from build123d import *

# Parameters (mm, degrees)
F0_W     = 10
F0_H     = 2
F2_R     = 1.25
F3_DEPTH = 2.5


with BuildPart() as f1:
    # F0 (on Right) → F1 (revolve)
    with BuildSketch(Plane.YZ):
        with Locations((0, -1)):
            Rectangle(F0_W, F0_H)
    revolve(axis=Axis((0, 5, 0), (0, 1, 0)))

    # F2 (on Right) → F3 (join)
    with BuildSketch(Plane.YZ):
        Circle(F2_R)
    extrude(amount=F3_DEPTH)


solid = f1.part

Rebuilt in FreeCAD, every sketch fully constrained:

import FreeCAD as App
import Part
import Sketcher
from FreeCAD import Vector

doc = App.newDocument("Part")
body = doc.addObject("PartDesign::Body", "Body")

sketch1 = body.newObject("Sketcher::SketchObject", "Sketch")
sketch1.AttachmentSupport = (doc.getObject("YZ_Plane"), [""])
sketch1.MapMode = "FlatFace"
sketch1.addGeometry(Part.LineSegment(Vector(-5, 0, 0), Vector(-5, -2, 0)), False)
sketch1.addGeometry(Part.LineSegment(Vector(-5, -2, 0), Vector(5, -2, 0)), False)
sketch1.addGeometry(Part.LineSegment(Vector(5, -2, 0), Vector(5, 0, 0)), False)
sketch1.addGeometry(Part.LineSegment(Vector(5, 0, 0), Vector(-5, 0, 0)), False)
sketch1.addConstraint(Sketcher.Constraint("Coincident", 0, 2, 1, 1))
sketch1.addConstraint(Sketcher.Constraint("Coincident", 1, 2, 2, 1))
sketch1.addConstraint(Sketcher.Constraint("Coincident", 2, 2, 3, 1))
sketch1.addConstraint(Sketcher.Constraint("Coincident", 3, 2, 0, 1))
sketch1.addConstraint(Sketcher.Constraint("Vertical", 0))
sketch1.addConstraint(Sketcher.Constraint("Horizontal", 1))
sketch1.addConstraint(Sketcher.Constraint("Vertical", 2))
sketch1.addConstraint(Sketcher.Constraint("Horizontal", 3))
sketch1.addConstraint(Sketcher.Constraint("Symmetric", 2, 2, 3, 2, -1, 1))
sketch1.addConstraint(Sketcher.Constraint("DistanceX", 1, 1, 1, 2, 10.0))
sketch1.addConstraint(Sketcher.Constraint("DistanceY", 0, 2, 0, 1, 2.0))
revolution = body.newObject("PartDesign::Revolution", "Revolution")
revolution.Profile = sketch1
revolution.ReferenceAxis = (sketch1, ["H_Axis"])
revolution.Angle = 360

sketch2 = body.newObject("Sketcher::SketchObject", "Sketch001")
sketch2.AttachmentSupport = (doc.getObject("YZ_Plane"), [""])
sketch2.MapMode = "FlatFace"
sketch2.addGeometry(Part.Circle(Vector(0, 0, 0), Vector(0, 0, 1), 1.2), False)
sketch2.addConstraint(Sketcher.Constraint("Coincident", 0, 3, -1, 1))
sketch2.addConstraint(Sketcher.Constraint("Diameter", 0, 2.5))
pad1 = body.newObject("PartDesign::Pad", "Pad")
pad1.Profile = sketch2
pad1.Length = 2.5

doc.recompute()
